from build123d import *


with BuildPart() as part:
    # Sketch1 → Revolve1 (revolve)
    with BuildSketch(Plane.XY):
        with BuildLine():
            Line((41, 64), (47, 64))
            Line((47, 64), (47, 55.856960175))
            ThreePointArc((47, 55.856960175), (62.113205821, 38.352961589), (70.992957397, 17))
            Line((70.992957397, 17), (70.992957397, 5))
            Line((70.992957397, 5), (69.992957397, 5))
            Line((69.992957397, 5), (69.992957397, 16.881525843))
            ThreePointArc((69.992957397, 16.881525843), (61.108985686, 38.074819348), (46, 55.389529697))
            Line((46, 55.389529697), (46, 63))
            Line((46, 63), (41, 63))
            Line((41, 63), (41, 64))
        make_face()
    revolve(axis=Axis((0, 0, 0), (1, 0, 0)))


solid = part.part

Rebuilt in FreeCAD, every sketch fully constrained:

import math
import FreeCAD as App
import Part
import Sketcher
Q = App.Units.Quantity

doc = App.newDocument("Part")
params = doc.addObject("Spreadsheet::Sheet", "Params")
for row, (alias, value) in enumerate([
    ("sketch1_radius", "72 mm"),
    ("sketch1_radius2", "73 mm"),
    ("sketch1_width", "6 mm"),
    ("sketch1_width2", "5 mm"),
    ("sketch1_width3", "1 mm"),
    ("revolution_angle", "360 deg"),
], start=1):
    params.set(f"A{row}", alias)
    params.set(f"B{row}", "=" + value)
    params.setAlias(f"B{row}", alias)

body = doc.addObject("PartDesign::Body", "Body")

# Sketch on XY plane
sketch1 = body.newObject("Sketcher::SketchObject", "Sketch")
sketch1.AttachmentSupport = (doc.getObject("XY_Plane"), [""])
sketch1.MapMode = "FlatFace"
sketch1.addGeometry([
    Part.LineSegment(App.Vector(47, 64, 0), App.Vector(41, 64, 0)),  # 0
    Part.LineSegment(App.Vector(41, 64, 0), App.Vector(41, 63, 0)),  # 1
    Part.LineSegment(App.Vector(41, 63, 0), App.Vector(46, 63, 0)),  # 2
    Part.LineSegment(App.Vector(46, 63, 0), App.Vector(46, 55.4, 0)),  # 3
    Part.ArcOfCircle(Part.Circle(App.Vector(0, 0, 0), App.Vector(0, 0, 1), 72), math.radians(14), math.radians(50)),  # 4
    Part.LineSegment(App.Vector(70, 16.9, 0), App.Vector(70, 5, 0)),  # 5
    Part.LineSegment(App.Vector(70, 5, 0), App.Vector(71, 5, 0)),  # 6
    Part.LineSegment(App.Vector(71, 5, 0), App.Vector(71, 17, 0)),  # 7
    Part.ArcOfCircle(Part.Circle(App.Vector(0, 0, 0), App.Vector(0, 0, 1), 73), math.radians(13), math.radians(50)),  # 8
    Part.LineSegment(App.Vector(47, 55.9, 0), App.Vector(47, 64, 0)),  # 9
], False)
sketch1.addConstraint([
    Sketcher.Constraint("Coincident", 0, 2, 1, 1),
    Sketcher.Constraint("Coincident", 1, 2, 2, 1),
    Sketcher.Constraint("Coincident", 2, 2, 3, 1),
    Sketcher.Constraint("Coincident", 3, 2, 4, 2),
    Sketcher.Constraint("Coincident", 4, 1, 5, 1),
    Sketcher.Constraint("Coincident", 5, 2, 6, 1),
    Sketcher.Constraint("Coincident", 6, 2, 7, 1),
    Sketcher.Constraint("Coincident", 7, 2, 8, 1),
    Sketcher.Constraint("Coincident", 8, 2, 9, 1),
    Sketcher.Constraint("Coincident", 9, 2, 0, 1),
    Sketcher.Constraint("Horizontal", 0),
    Sketcher.Constraint("Vertical", 1),
    Sketcher.Constraint("Horizontal", 2),
    Sketcher.Constraint("Vertical", 3),
    Sketcher.Constraint("Vertical", 5),
    Sketcher.Constraint("Horizontal", 6),
    Sketcher.Constraint("Vertical", 7),
    Sketcher.Constraint("Vertical", 9),
    Sketcher.Constraint("Coincident", 4, 3, -1, 1),
    Sketcher.Constraint("Coincident", 8, 3, -1, 1),
    Sketcher.Constraint("Equal", 6, 1),
    Sketcher.Constraint("Radius", 4, Q("72 mm")),
    Sketcher.Constraint("Radius", 8, Q("73 mm")),
    Sketcher.Constraint("DistanceX", 0, 2, 0, 1, Q("6 mm")),
    Sketcher.Constraint("DistanceX", 2, 1, 2, 2, Q("5 mm")),
    Sketcher.Constraint("DistanceX", 6, 1, 6, 2, Q("1 mm")),
    Sketcher.Constraint("DistanceY", 7, 1, 7, 2, Q("12 mm")),
    Sketcher.Constraint("DistanceX", -1, 1, 0, 2, Q("41 mm")),
    Sketcher.Constraint("DistanceY", -1, 1, 0, 2, Q("64 mm")),
    Sketcher.Constraint("DistanceY", -1, 1, 5, 2, Q("5 mm")),
])
sketch1.setExpression("Constraints[21]", "Params.sketch1_radius")
sketch1.setExpression("Constraints[22]", "Params.sketch1_radius2")
sketch1.setExpression("Constraints[23]", "Params.sketch1_width")
sketch1.setExpression("Constraints[24]", "Params.sketch1_width2")
sketch1.setExpression("Constraints[25]", "Params.sketch1_width3")
revolution = body.newObject("PartDesign::Revolution", "Revolution")
revolution.Profile = sketch1
revolution.ReferenceAxis = (sketch1, ["H_Axis"])
revolution.setExpression("Angle", "Params.revolution_angle")

doc.recompute()
